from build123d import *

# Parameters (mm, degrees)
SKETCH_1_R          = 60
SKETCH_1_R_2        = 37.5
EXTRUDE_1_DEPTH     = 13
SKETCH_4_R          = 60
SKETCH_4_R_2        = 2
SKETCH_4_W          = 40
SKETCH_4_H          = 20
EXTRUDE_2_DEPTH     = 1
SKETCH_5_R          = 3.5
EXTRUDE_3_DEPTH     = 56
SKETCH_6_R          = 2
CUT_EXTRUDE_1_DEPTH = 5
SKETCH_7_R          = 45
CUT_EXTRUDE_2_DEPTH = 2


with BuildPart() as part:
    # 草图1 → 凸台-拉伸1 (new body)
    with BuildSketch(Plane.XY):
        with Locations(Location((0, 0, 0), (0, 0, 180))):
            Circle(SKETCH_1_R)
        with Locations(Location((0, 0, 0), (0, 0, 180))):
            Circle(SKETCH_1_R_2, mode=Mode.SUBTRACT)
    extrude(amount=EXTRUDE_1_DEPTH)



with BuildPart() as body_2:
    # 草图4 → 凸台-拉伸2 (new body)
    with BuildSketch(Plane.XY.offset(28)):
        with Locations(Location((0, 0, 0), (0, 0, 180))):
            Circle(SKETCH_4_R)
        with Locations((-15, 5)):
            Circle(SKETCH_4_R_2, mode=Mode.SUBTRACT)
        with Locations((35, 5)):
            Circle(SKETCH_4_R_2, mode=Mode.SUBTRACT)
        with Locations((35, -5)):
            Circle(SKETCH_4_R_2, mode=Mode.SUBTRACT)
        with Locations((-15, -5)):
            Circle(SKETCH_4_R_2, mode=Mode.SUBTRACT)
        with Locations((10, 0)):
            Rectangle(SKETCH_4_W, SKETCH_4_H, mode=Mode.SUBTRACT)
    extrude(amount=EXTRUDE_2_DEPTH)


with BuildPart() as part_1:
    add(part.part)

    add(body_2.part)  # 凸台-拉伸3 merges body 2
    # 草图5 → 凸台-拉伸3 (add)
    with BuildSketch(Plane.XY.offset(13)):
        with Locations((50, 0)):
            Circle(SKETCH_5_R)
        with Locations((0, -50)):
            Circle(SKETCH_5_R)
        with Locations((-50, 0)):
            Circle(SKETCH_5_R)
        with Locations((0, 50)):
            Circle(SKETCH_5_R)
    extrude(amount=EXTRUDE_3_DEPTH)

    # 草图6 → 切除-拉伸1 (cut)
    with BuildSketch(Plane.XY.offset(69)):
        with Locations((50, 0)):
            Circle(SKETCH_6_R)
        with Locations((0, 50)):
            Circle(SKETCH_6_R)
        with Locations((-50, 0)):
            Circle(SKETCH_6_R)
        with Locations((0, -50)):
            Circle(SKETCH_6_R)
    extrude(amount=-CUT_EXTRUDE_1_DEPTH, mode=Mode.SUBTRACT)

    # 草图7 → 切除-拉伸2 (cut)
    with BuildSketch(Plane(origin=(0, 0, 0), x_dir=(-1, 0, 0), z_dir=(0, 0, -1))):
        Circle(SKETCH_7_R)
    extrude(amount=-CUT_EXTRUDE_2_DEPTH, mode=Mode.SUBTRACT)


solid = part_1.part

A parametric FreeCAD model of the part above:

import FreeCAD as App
import Part
import Sketcher

V = App.Vector
Q = App.Units.Quantity

doc = App.newDocument("Part")
params = doc.addObject("Spreadsheet::Sheet", "Params")
for row, (alias, value) in enumerate([
    ("sketch1_diameter", "120 mm"),
    ("sketch1_diameter2", "75 mm"),
    ("pad1_length", "13 mm"),
    ("sketch2_diameter", "120 mm"),
    ("sketch2_diameter2", "4 mm"),
    ("sketch2_width", "40 mm"),
    ("sketch2_height", "20 mm"),
    ("pad2_length", "1 mm"),
    ("sketch3_diameter", "7 mm"),
    ("pad3_length", "56 mm"),
    ("sketch4_diameter", "4 mm"),
    ("pocket1_length", "5 mm"),
    ("sketch5_diameter", "90 mm"),
    ("pocket2_length", "2 mm"),
], start=1):
    params.set(f"A{row}", alias)
    params.set(f"B{row}", "=" + value)
    params.setAlias(f"B{row}", alias)

body = doc.addObject("PartDesign::Body", "Body")

# Sketch on XY plane
sketch1 = body.newObject("Sketcher::SketchObject", "Sketch")
sketch1.AttachmentSupport = (doc.getObject("XY_Plane"), [""])
sketch1.MapMode = "FlatFace"
sketch1.addGeometry([
    Part.Circle(V(0, 0, 0), V(0, 0, 1), 60),
    Part.Circle(V(0, 0, 0), V(0, 0, 1), 38),
], False)
sketch1.addConstraint([
    Sketcher.Constraint("Coincident", 0, 3, -1, 1),
    Sketcher.Constraint("Coincident", 1, 3, -1, 1),
    Sketcher.Constraint("Diameter", 0, Q("120 mm")),
    Sketcher.Constraint("Diameter", 1, Q("75 mm")),
])
sketch1.setExpression("Constraints[2]", "Params.sketch1_diameter")
sketch1.setExpression("Constraints[3]", "Params.sketch1_diameter2")
pad1 = body.newObject("PartDesign::Pad", "Pad")
pad1.Profile = sketch1
pad1.setExpression("Length", "Params.pad1_length")
body2 = doc.addObject("PartDesign::Body", "Body001")

# Sketch on XY plane
sketch2 = body2.newObject("Sketcher::SketchObject", "Sketch001")
sketch2.AttachmentSupport = (doc.getObject("XY_Plane001"), [""])
sketch2.MapMode = "FlatFace"
sketch2.AttachmentOffset = App.Placement(V(0, 0, 28), App.Rotation())
sketch2.addGeometry([
    Part.Circle(V(0, 0, 0), V(0, 0, 1), 60),  # 0
    Part.Circle(V(35, 5, 0), V(0, 0, 1), 2),  # 1
    Part.Circle(V(-15, 5, 0), V(0, 0, 1), 2),  # 2
    Part.Circle(V(35, -5, 0), V(0, 0, 1), 2),  # 3
    Part.LineSegment(V(30, -10, 0), V(-10, -10, 0)),  # 4
    Part.LineSegment(V(-10, -10, 0), V(-10, 10, 0)),  # 5
    Part.LineSegment(V(-10, 10, 0), V(30, 10, 0)),  # 6
    Part.LineSegment(V(30, 10, 0), V(30, -10, 0)),  # 7
    Part.Circle(V(-15, -5, 0), V(0, 0, 1), 2),  # 8
], False)
sketch2.addConstraint([
    Sketcher.Constraint("Coincident", 4, 2, 5, 1),
    Sketcher.Constraint("Coincident", 5, 2, 6, 1),
    Sketcher.Constraint("Coincident", 6, 2, 7, 1),
    Sketcher.Constraint("Coincident", 7, 2, 4, 1),
    Sketcher.Constraint("Horizontal", 4),
    Sketcher.Constraint("Vertical", 5),
    Sketcher.Constraint("Horizontal", 6),
    Sketcher.Constraint("Vertical", 7),
    Sketcher.Constraint("Coincident", 0, 3, -1, 1),
    Sketcher.Constraint("Equal", 1, 2),
    Sketcher.Constraint("Equal", 2, 3),
    Sketcher.Constraint("Equal", 3, 8),
    Sketcher.Constraint("Symmetric", 1, 3, 3, 3, -1),
    Sketcher.Constraint("Symmetric", 2, 3, 8, 3, -1),
    Sketcher.Constraint("Horizontal", 1, 3, 2, 3),
    Sketcher.Constraint("Diameter", 0, Q("120 mm")),
    Sketcher.Constraint("Diameter", 1, Q("4 mm")),
    Sketcher.Constraint("DistanceX", 4, 2, 4, 1, Q("40 mm")),
    Sketcher.Constraint("DistanceY", 5, 1, 5, 2, Q("20 mm")),
    Sketcher.Constraint("DistanceX", -1, 1, 1, 3, Q("35 mm")),
    Sketcher.Constraint("DistanceY", -1, 1, 1, 3, Q("5 mm")),
    Sketcher.Constraint("DistanceX", 2, 3, -1, 1, Q("15 mm")),
    Sketcher.Constraint("DistanceX", 4, 2, -1, 1, Q("10 mm")),
    Sketcher.Constraint("DistanceY", 4, 2, -1, 1, Q("10 mm")),
])
sketch2.setExpression("Constraints[15]", "Params.sketch2_diameter")
sketch2.setExpression("Constraints[16]", "Params.sketch2_diameter2")
sketch2.setExpression("Constraints[17]", "Params.sketch2_width")
sketch2.setExpression("Constraints[18]", "Params.sketch2_height")
pad2 = body2.newObject("PartDesign::Pad", "Pad001")
pad2.Profile = sketch2
pad2.setExpression("Length", "Params.pad2_length")
body.AllowCompound = True
doc.recompute()

boolean = body.newObject("PartDesign::Boolean", "Boolean")
boolean.Type = "Fuse"
boolean.addObjects([body2])

# Sketch on XY plane
sketch3 = body.newObject("Sketcher::SketchObject", "Sketch002")
sketch3.AttachmentSupport = (doc.getObject("XY_Plane"), [""])
sketch3.MapMode = "FlatFace"
sketch3.AttachmentOffset = App.Placement(V(0, 0, 13), App.Rotation())
sketch3.addGeometry([
    Part.Circle(V(50, 0, 0), V(0, 0, 1), 3.5),
    Part.Circle(V(0, -50, 0), V(0, 0, 1), 3.5),
    Part.Circle(V(-50, 0, 0), V(0, 0, 1), 3.5),
    Part.Circle(V(0, 50, 0), V(0, 0, 1), 3.5),
], False)
sketch3.addConstraint([
    Sketcher.Constraint("Equal", 0, 1),
    Sketcher.Constraint("Equal", 1, 2),
    Sketcher.Constraint("Equal", 2, 3),
    Sketcher.Constraint("Symmetric", 0, 3, 2, 3, -1, 1),
    Sketcher.Constraint("Symmetric", 1, 3, 3, 3, -1, 1),
    Sketcher.Constraint("PointOnObject", 0, 3, -1),
    Sketcher.Constraint("PointOnObject", 1, 3, -2),
    Sketcher.Constraint("Diameter", 0, Q("7 mm")),
    Sketcher.Constraint("DistanceX", -1, 1, 0, 3, Q("50 mm")),
    Sketcher.Constraint("DistanceY", 1, 3, -1, 1, Q("50 mm")),
])
sketch3.setExpression("Constraints[7]", "Params.sketch3_diameter")
pad3 = body.newObject("PartDesign::Pad", "Pad002")
pad3.Profile = sketch3
pad3.setExpression("Length", "Params.pad3_length")

# Sketch on XY plane
sketch4 = body.newObject("Sketcher::SketchObject", "Sketch003")
sketch4.AttachmentSupport = (doc.getObject("XY_Plane"), [""])
sketch4.MapMode = "FlatFace"
sketch4.AttachmentOffset = App.Placement(V(0, 0, 69), App.Rotation())
sketch4.addGeometry([
    Part.Circle(V(50, 0, 0), V(0, 0, 1), 2),
    Part.Circle(V(0, 50, 0), V(0, 0, 1), 2),
    Part.Circle(V(-50, 0, 0), V(0, 0, 1), 2),
    Part.Circle(V(0, -50, 0), V(0, 0, 1), 2),
], False)
sketch4.addConstraint([
    Sketcher.Constraint("Equal", 0, 1),
    Sketcher.Constraint("Equal", 1, 2),
    Sketcher.Constraint("Equal", 2, 3),
    Sketcher.Constraint("Symmetric", 0, 3, 2, 3, -1, 1),
    Sketcher.Constraint("Symmetric", 1, 3, 3, 3, -1, 1),
    Sketcher.Constraint("PointOnObject", 0, 3, -1),
    Sketcher.Constraint("PointOnObject", 1, 3, -2),
    Sketcher.Constraint("Diameter", 0, Q("4 mm")),
    Sketcher.Constraint("DistanceX", -1, 1, 0, 3, Q("50 mm")),
    Sketcher.Constraint("DistanceY", -1, 1, 1, 3, Q("50 mm")),
])
sketch4.setExpression("Constraints[7]", "Params.sketch4_diameter")
pocket1 = body.newObject("PartDesign::Pocket", "Pocket")
pocket1.Profile = sketch4
pocket1.setExpression("Length", "Params.pocket1_length")

# Sketch on XY plane
sketch5 = body.newObject("Sketcher::SketchObject", "Sketch004")
sketch5.AttachmentSupport = (doc.getObject("XY_Plane"), [""])
sketch5.MapMode = "FlatFace"
sketch5.addGeometry(Part.Circle(V(0, 0, 0), V(0, 0, 1), 45), False)
sketch5.addConstraint([
    Sketcher.Constraint("Coincident", 0, 3, -1, 1),
    Sketcher.Constraint("Diameter", 0, Q("90 mm")),
])
sketch5.setExpression("Constraints[1]", "Params.sketch5_diameter")
pocket2 = body.newObject("PartDesign::Pocket", "Pocket001")
pocket2.Profile = sketch5
pocket2.setExpression("Length", "Params.pocket2_length")
pocket2.Reversed = True

doc.recompute()
